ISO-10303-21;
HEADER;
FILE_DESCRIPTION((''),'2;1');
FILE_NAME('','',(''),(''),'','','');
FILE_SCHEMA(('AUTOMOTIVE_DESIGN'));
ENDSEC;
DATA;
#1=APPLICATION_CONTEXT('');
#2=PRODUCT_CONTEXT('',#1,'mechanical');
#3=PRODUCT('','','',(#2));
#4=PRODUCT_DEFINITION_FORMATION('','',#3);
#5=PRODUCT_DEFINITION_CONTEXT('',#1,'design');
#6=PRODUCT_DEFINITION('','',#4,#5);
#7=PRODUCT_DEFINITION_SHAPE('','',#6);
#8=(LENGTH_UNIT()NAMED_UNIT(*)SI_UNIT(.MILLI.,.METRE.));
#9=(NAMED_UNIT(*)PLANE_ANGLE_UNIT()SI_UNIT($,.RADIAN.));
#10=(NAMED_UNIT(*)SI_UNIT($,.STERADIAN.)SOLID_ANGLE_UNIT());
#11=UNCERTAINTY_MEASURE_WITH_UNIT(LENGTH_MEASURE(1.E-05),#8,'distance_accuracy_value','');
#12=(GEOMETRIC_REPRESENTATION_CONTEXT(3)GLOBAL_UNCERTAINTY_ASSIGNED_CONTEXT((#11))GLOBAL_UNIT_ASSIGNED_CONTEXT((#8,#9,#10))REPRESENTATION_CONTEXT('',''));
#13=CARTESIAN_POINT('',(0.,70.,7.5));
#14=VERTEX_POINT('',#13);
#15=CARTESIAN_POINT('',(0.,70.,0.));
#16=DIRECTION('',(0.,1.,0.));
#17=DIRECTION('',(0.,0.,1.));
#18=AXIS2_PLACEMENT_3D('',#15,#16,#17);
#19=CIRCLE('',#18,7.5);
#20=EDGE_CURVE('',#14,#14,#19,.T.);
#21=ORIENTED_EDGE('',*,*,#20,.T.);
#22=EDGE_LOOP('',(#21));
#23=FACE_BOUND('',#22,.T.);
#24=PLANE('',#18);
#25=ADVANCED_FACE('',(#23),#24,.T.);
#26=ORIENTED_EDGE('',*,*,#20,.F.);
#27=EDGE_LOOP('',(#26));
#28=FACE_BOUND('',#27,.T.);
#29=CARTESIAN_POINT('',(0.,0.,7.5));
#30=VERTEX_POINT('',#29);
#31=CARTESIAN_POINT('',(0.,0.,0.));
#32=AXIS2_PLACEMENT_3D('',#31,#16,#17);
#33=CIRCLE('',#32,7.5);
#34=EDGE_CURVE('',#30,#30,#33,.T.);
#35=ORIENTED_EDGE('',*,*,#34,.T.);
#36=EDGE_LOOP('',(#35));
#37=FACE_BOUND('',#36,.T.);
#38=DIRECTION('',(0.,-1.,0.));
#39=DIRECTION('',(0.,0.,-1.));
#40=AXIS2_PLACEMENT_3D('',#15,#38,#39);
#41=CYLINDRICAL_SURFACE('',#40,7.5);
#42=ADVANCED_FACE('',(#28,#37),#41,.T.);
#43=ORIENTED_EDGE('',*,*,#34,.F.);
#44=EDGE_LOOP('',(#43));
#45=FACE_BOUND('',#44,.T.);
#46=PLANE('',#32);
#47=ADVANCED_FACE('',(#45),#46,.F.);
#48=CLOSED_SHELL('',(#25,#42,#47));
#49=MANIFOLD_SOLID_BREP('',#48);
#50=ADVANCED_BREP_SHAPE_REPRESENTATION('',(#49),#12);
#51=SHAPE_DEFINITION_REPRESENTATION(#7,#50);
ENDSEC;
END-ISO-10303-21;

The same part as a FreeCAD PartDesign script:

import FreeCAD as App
import Part
import Sketcher

V = App.Vector
Q = App.Units.Quantity

doc = App.newDocument("Part")
params = doc.addObject("Spreadsheet::Sheet", "Params")
for row, (alias, value) in enumerate([
    ("sketch1_diameter", "15 mm"),
    ("pad1_length", "70 mm"),
], start=1):
    params.set(f"A{row}", alias)
    params.set(f"B{row}", "=" + value)
    params.setAlias(f"B{row}", alias)

body = doc.addObject("PartDesign::Body", "Body")

# Sketch on XZ plane
sketch1 = doc.addObject("Sketcher::SketchObject", "Sketch")
body.addObject(sketch1)
sketch1.AttachmentSupport = (doc.XZ_Plane, [""])
sketch1.MapMode = "FlatFace"
sketch1.addGeometry(Part.Circle(V(0, 0, 0), V(0, 0, 1), 8), False)
sketch1.addConstraint(Sketcher.Constraint("Coincident", 0, 3, -1, 1))
sketch1.addConstraint(Sketcher.Constraint("Diameter", 0, Q("15 mm")))
sketch1.setExpression("Constraints[1]", "Params.sketch1_diameter")
pad1 = doc.addObject("PartDesign::Pad", "Pad")
body.addObject(pad1)
pad1.Profile = sketch1
pad1.setExpression("Length", "Params.pad1_length")
pad1.Reversed = True

doc.recompute()
